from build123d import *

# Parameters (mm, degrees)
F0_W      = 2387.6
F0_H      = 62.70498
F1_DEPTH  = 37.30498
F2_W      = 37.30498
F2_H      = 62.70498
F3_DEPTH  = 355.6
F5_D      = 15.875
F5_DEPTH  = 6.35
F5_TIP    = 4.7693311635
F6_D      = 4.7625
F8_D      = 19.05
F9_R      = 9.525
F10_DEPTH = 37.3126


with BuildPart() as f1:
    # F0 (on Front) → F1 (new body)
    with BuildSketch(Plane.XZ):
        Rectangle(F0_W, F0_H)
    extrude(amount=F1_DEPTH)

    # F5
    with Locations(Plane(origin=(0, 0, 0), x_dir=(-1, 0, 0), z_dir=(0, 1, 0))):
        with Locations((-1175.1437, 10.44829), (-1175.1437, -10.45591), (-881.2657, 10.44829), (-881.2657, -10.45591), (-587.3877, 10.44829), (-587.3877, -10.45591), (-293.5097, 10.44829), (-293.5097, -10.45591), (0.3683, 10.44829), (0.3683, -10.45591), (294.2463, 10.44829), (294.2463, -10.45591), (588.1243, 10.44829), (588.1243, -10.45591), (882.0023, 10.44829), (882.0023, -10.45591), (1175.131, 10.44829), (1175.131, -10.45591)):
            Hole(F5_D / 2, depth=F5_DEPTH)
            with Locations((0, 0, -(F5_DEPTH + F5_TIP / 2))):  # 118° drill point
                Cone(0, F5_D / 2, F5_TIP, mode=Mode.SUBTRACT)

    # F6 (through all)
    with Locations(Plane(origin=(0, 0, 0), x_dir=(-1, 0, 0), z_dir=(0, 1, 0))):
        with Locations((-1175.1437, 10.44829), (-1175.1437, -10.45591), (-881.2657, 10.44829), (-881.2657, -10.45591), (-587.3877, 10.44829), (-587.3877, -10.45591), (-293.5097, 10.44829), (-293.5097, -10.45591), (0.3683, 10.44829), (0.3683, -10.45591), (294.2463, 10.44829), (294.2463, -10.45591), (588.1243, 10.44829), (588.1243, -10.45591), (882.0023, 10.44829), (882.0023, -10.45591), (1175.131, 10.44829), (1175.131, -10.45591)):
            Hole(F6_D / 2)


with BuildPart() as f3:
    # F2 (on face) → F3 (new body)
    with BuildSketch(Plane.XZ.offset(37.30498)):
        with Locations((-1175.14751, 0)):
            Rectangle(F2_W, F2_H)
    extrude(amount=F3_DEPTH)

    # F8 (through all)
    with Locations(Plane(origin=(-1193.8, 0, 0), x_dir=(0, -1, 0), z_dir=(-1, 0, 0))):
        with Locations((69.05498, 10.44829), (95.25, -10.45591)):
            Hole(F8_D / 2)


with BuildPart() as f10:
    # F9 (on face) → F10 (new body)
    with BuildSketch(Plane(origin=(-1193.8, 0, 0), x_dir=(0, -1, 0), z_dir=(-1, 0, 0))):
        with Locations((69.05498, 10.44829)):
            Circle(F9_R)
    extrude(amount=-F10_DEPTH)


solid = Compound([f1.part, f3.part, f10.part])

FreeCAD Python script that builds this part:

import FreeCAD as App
import Part
import Sketcher

V = App.Vector
Q = App.Units.Quantity

doc = App.newDocument("Part")
params = doc.addObject("Spreadsheet::Sheet", "Params")
for row, (alias, value) in enumerate([
    ("sketch1_width", "94 in"),
    ("pad1_length", "1.4687 in"),
    ("sketch2_diameter", "0.625 in"),
    ("hole_diameter", "0.625 in"),
    ("hole_depth", "0.25 in"),
    ("sketch3_diameter", "0.1875 in"),
    ("hole2_diameter", "0.1875 in"),
    ("pad2_length", "14 in"),
    ("sketch5_diameter", "0.75 in"),
    ("hole3_diameter", "0.75 in"),
    ("sketch6_diameter", "0.75 in"),
    ("pad3_length", "1.469 in"),
], start=1):
    params.set(f"A{row}", alias)
    params.set(f"B{row}", "=" + value)
    params.setAlias(f"B{row}", alias)

body = doc.addObject("PartDesign::Body", "Body")

# Sketch on XZ plane
sketch1 = body.newObject("Sketcher::SketchObject", "Sketch")
sketch1.AttachmentSupport = (doc.getObject("XZ_Plane"), [""])
sketch1.MapMode = "FlatFace"
sketch1.addGeometry(Part.LineSegment(V(-1194, 31, 0), V(-1194, -31, 0)), False)
sketch1.addGeometry(Part.LineSegment(V(-1194, -31, 0), V(1194, -31, 0)), False)
sketch1.addGeometry(Part.LineSegment(V(1194, -31, 0), V(1194, 31, 0)), False)
sketch1.addGeometry(Part.LineSegment(V(1194, 31, 0), V(-1194, 31, 0)), False)
sketch1.addConstraint(Sketcher.Constraint("Coincident", 0, 2, 1, 1))
sketch1.addConstraint(Sketcher.Constraint("Coincident", 1, 2, 2, 1))
sketch1.addConstraint(Sketcher.Constraint("Coincident", 2, 2, 3, 1))
sketch1.addConstraint(Sketcher.Constraint("Coincident", 3, 2, 0, 1))
sketch1.addConstraint(Sketcher.Constraint("Vertical", 0))
sketch1.addConstraint(Sketcher.Constraint("Horizontal", 1))
sketch1.addConstraint(Sketcher.Constraint("Vertical", 2))
sketch1.addConstraint(Sketcher.Constraint("Horizontal", 3))
sketch1.addConstraint(Sketcher.Constraint("Symmetric", 0, 2, 2, 2, -1, 1))
sketch1.addConstraint(Sketcher.Constraint("DistanceX", 1, 1, 1, 2, Q("94 in")))
sketch1.addConstraint(Sketcher.Constraint("DistanceY", 0, 2, 0, 1, Q("2.4687 in")))
sketch1.setExpression("Constraints[9]", "Params.sketch1_width")
pad1 = body.newObject("PartDesign::Pad", "Pad")
pad1.Profile = sketch1
pad1.setExpression("Length", "Params.pad1_length")

# Sketch on XZ plane
sketch2 = body.newObject("Sketcher::SketchObject", "Sketch001")
sketch2.AttachmentSupport = (doc.getObject("XZ_Plane"), [""])
sketch2.MapMode = "FlatFace"
sketch2.addGeometry(Part.Circle(V(1175, 10, 0), V(0, 0, 1), 8), False)
sketch2.addGeometry(Part.Circle(V(1175, -10, 0), V(0, 0, 1), 8), False)
sketch2.addGeometry(Part.Circle(V(881, 10, 0), V(0, 0, 1), 8), False)
sketch2.addGeometry(Part.Circle(V(881, -10, 0), V(0, 0, 1), 8), False)
sketch2.addGeometry(Part.Circle(V(587, 10, 0), V(0, 0, 1), 8), False)
sketch2.addGeometry(Part.Circle(V(587, -10, 0), V(0, 0, 1), 8), False)
sketch2.addGeometry(Part.Circle(V(294, 10, 0), V(0, 0, 1), 8), False)
sketch2.addGeometry(Part.Circle(V(294, -10, 0), V(0, 0, 1), 8), False)
sketch2.addGeometry(Part.Circle(V(0, 10, 0), V(0, 0, 1), 8), False)
sketch2.addGeometry(Part.Circle(V(0, -10, 0), V(0, 0, 1), 8), False)
sketch2.addGeometry(Part.Circle(V(-294, 10, 0), V(0, 0, 1), 8), False)
sketch2.addGeometry(Part.Circle(V(-294, -10, 0), V(0, 0, 1), 8), False)
sketch2.addGeometry(Part.Circle(V(-588, 10, 0), V(0, 0, 1), 8), False)
sketch2.addGeometry(Part.Circle(V(-588, -10, 0), V(0, 0, 1), 8), False)
sketch2.addGeometry(Part.Circle(V(-882, 10, 0), V(0, 0, 1), 8), False)
sketch2.addGeometry(Part.Circle(V(-882, -10, 0), V(0, 0, 1), 8), False)
sketch2.addGeometry(Part.Circle(V(-1175, 10, 0), V(0, 0, 1), 8), False)
sketch2.addGeometry(Part.Circle(V(-1175, -10, 0), V(0, 0, 1), 8), False)
sketch2.addConstraint(Sketcher.Constraint("Equal", 0, 1))
sketch2.addConstraint(Sketcher.Constraint("Equal", 1, 2))
sketch2.addConstraint(Sketcher.Constraint("Equal", 2, 3))
sketch2.addConstraint(Sketcher.Constraint("Equal", 3, 4))
sketch2.addConstraint(Sketcher.Constraint("Equal", 4, 5))
sketch2.addConstraint(Sketcher.Constraint("Equal", 5, 6))
sketch2.addConstraint(Sketcher.Constraint("Equal", 6, 7))
sketch2.addConstraint(Sketcher.Constraint("Equal", 7, 8))
sketch2.addConstraint(Sketcher.Constraint("Equal", 8, 9))
sketch2.addConstraint(Sketcher.Constraint("Equal", 9, 10))
sketch2.addConstraint(Sketcher.Constraint("Equal", 10, 11))
sketch2.addConstraint(Sketcher.Constraint("Equal", 11, 12))
sketch2.addConstraint(Sketcher.Constraint("Equal", 12, 13))
sketch2.addConstraint(Sketcher.Constraint("Equal", 13, 14))
sketch2.addConstraint(Sketcher.Constraint("Equal", 14, 15))
sketch2.addConstraint(Sketcher.Constraint("Equal", 15, 16))
sketch2.addConstraint(Sketcher.Constraint("Equal", 16, 17))
sketch2.addConstraint(Sketcher.Constraint("Horizontal", 0, 3, 2, 3))
sketch2.addConstraint(Sketcher.Constraint("Horizontal", 1, 3, 3, 3))
sketch2.addConstraint(Sketcher.Constraint("Horizontal", 2, 3, 4, 3))
sketch2.addConstraint(Sketcher.Constraint("Horizontal", 3, 3, 5, 3))
sketch2.addConstraint(Sketcher.Constraint("Horizontal", 4, 3, 6, 3))
sketch2.addConstraint(Sketcher.Constraint("Horizontal", 5, 3, 7, 3))
sketch2.addConstraint(Sketcher.Constraint("Horizontal", 6, 3, 8, 3))
sketch2.addConstraint(Sketcher.Constraint("Horizontal", 7, 3, 9, 3))
sketch2.addConstraint(Sketcher.Constraint("Horizontal", 8, 3, 10, 3))
sketch2.addConstraint(Sketcher.Constraint("Horizontal", 9, 3, 11, 3))
sketch2.addConstraint(Sketcher.Constraint("Horizontal", 10, 3, 12, 3))
sketch2.addConstraint(Sketcher.Constraint("Horizontal", 11, 3, 13, 3))
sketch2.addConstraint(Sketcher.Constraint("Horizontal", 12, 3, 14, 3))
sketch2.addConstraint(Sketcher.Constraint("Horizontal", 13, 3, 15, 3))
sketch2.addConstraint(Sketcher.Constraint("Horizontal", 14, 3, 16, 3))
sketch2.addConstraint(Sketcher.Constraint("Horizontal", 15, 3, 17, 3))
sketch2.addConstraint(Sketcher.Constraint("Vertical", 0, 3, 1, 3))
sketch2.addConstraint(Sketcher.Constraint("Vertical", 2, 3, 3, 3))
sketch2.addConstraint(Sketcher.Constraint("Vertical", 4, 3, 5, 3))
sketch2.addConstraint(Sketcher.Constraint("Vertical", 6, 3, 7, 3))
sketch2.addConstraint(Sketcher.Constraint("Vertical", 8, 3, 9, 3))
sketch2.addConstraint(Sketcher.Constraint("Vertical", 10, 3, 11, 3))
sketch2.addConstraint(Sketcher.Constraint("Vertical", 12, 3, 13, 3))
sketch2.addConstraint(Sketcher.Constraint("Vertical", 14, 3, 15, 3))
sketch2.addConstraint(Sketcher.Constraint("Vertical", 16, 3, 17, 3))
sketch2.addConstraint(Sketcher.Constraint("Diameter", 0, Q("0.625 in")))
sketch2.addConstraint(Sketcher.Constraint("DistanceX", 2, 3, 0, 3, Q("11.57 in")))
sketch2.addConstraint(Sketcher.Constraint("DistanceX", 4, 3, 2, 3, Q("11.57 in")))
sketch2.addConstraint(Sketcher.Constraint("DistanceX", 6, 3, 4, 3, Q("11.57 in")))
sketch2.addConstraint(Sketcher.Constraint("DistanceX", 8, 3, 6, 3, Q("11.57 in")))
sketch2.addConstraint(Sketcher.Constraint("DistanceX", 10, 3, 8, 3, Q("11.57 in")))
sketch2.addConstraint(Sketcher.Constraint("DistanceX", 12, 3, 10, 3, Q("11.57 in")))
sketch2.addConstraint(Sketcher.Constraint("DistanceX", 14, 3, 12, 3, Q("11.57 in")))
sketch2.addConstraint(Sketcher.Constraint("DistanceX", 16, 3, -1, 1, Q("46.265 in")))
sketch2.addConstraint(Sketcher.Constraint("DistanceY", 1, 3, 0, 3, Q("0.823 in")))
sketch2.addConstraint(Sketcher.Constraint("DistanceX", -1, 1, 0, 3, Q("46.2655 in")))
sketch2.addConstraint(Sketcher.Constraint("DistanceY", -1, 1, 0, 3, 10.44829))
sketch2.setExpression("Constraints[42]", "Params.sketch2_diameter")
doc.recompute()
hole = body.newObject("PartDesign::Hole", "Hole")
hole.Profile = sketch2
hole.ThreadType = "None"
hole.setExpression("Diameter", "Params.hole_diameter")
hole.DepthType = "Dimension"
hole.setExpression("Depth", "Params.hole_depth")
hole.DrillPoint = "Angled"
hole.DrillPointAngle = 118
hole.Reversed = True

# Sketch on XZ plane
sketch3 = body.newObject("Sketcher::SketchObject", "Sketch002")
sketch3.AttachmentSupport = (doc.getObject("XZ_Plane"), [""])
sketch3.MapMode = "FlatFace"
sketch3.addGeometry(Part.Circle(V(1175.1, 10.4, 0), V(0, 0, 1), 2.4), False)
sketch3.addGeometry(Part.Circle(V(1175.1, -10.5, 0), V(0, 0, 1), 2.4), False)
sketch3.addGeometry(Part.Circle(V(881.3, 10.4, 0), V(0, 0, 1), 2.4), False)
sketch3.addGeometry(Part.Circle(V(881.3, -10.5, 0), V(0, 0, 1), 2.4), False)
sketch3.addGeometry(Part.Circle(V(587.4, 10.4, 0), V(0, 0, 1), 2.4), False)
sketch3.addGeometry(Part.Circle(V(587.4, -10.5, 0), V(0, 0, 1), 2.4), False)
sketch3.addGeometry(Part.Circle(V(293.5, 10.4, 0), V(0, 0, 1), 2.4), False)
sketch3.addGeometry(Part.Circle(V(293.5, -10.5, 0), V(0, 0, 1), 2.4), False)
sketch3.addGeometry(Part.Circle(V(-0.4, 10.4, 0), V(0, 0, 1), 2.4), False)
sketch3.addGeometry(Part.Circle(V(-0.4, -10.5, 0), V(0, 0, 1), 2.4), False)
sketch3.addGeometry(Part.Circle(V(-294.2, 10.4, 0), V(0, 0, 1), 2.4), False)
sketch3.addGeometry(Part.Circle(V(-294.2, -10.5, 0), V(0, 0, 1), 2.4), False)
sketch3.addGeometry(Part.Circle(V(-588.1, 10.4, 0), V(0, 0, 1), 2.4), False)
sketch3.addGeometry(Part.Circle(V(-588.1, -10.5, 0), V(0, 0, 1), 2.4), False)
sketch3.addGeometry(Part.Circle(V(-882, 10.4, 0), V(0, 0, 1), 2.4), False)
sketch3.addGeometry(Part.Circle(V(-882, -10.5, 0), V(0, 0, 1), 2.4), False)
sketch3.addGeometry(Part.Circle(V(-1175.1, 10.4, 0), V(0, 0, 1), 2.4), False)
sketch3.addGeometry(Part.Circle(V(-1175.1, -10.5, 0), V(0, 0, 1), 2.4), False)
sketch3.addConstraint(Sketcher.Constraint("Equal", 0, 1))
sketch3.addConstraint(Sketcher.Constraint("Equal", 1, 2))
sketch3.addConstraint(Sketcher.Constraint("Equal", 2, 3))
sketch3.addConstraint(Sketcher.Constraint("Equal", 3, 4))
sketch3.addConstraint(Sketcher.Constraint("Equal", 4, 5))
sketch3.addConstraint(Sketcher.Constraint("Equal", 5, 6))
sketch3.addConstraint(Sketcher.Constraint("Equal", 6, 7))
sketch3.addConstraint(Sketcher.Constraint("Equal", 7, 8))
sketch3.addConstraint(Sketcher.Constraint("Equal", 8, 9))
sketch3.addConstraint(Sketcher.Constraint("Equal", 9, 10))
sketch3.addConstraint(Sketcher.Constraint("Equal", 10, 11))
sketch3.addConstraint(Sketcher.Constraint("Equal", 11, 12))
sketch3.addConstraint(Sketcher.Constraint("Equal", 12, 13))
sketch3.addConstraint(Sketcher.Constraint("Equal", 13, 14))
sketch3.addConstraint(Sketcher.Constraint("Equal", 14, 15))
sketch3.addConstraint(Sketcher.Constraint("Equal", 15, 16))
sketch3.addConstraint(Sketcher.Constraint("Equal", 16, 17))
sketch3.addConstraint(Sketcher.Constraint("Horizontal", 0, 3, 2, 3))
sketch3.addConstraint(Sketcher.Constraint("Horizontal", 1, 3, 3, 3))
sketch3.addConstraint(Sketcher.Constraint("Horizontal", 2, 3, 4, 3))
sketch3.addConstraint(Sketcher.Constraint("Horizontal", 3, 3, 5, 3))
sketch3.addConstraint(Sketcher.Constraint("Horizontal", 4, 3, 6, 3))
sketch3.addConstraint(Sketcher.Constraint("Horizontal", 5, 3, 7, 3))
sketch3.addConstraint(Sketcher.Constraint("Horizontal", 6, 3, 8, 3))
sketch3.addConstraint(Sketcher.Constraint("Horizontal", 7, 3, 9, 3))
sketch3.addConstraint(Sketcher.Constraint("Horizontal", 8, 3, 10, 3))
sketch3.addConstraint(Sketcher.Constraint("Horizontal", 9, 3, 11, 3))
sketch3.addConstraint(Sketcher.Constraint("Horizontal", 10, 3, 12, 3))
sketch3.addConstraint(Sketcher.Constraint("Horizontal", 11, 3, 13, 3))
sketch3.addConstraint(Sketcher.Constraint("Horizontal", 12, 3, 14, 3))
sketch3.addConstraint(Sketcher.Constraint("Horizontal", 13, 3, 15, 3))
sketch3.addConstraint(Sketcher.Constraint("Horizontal", 14, 3, 16, 3))
sketch3.addConstraint(Sketcher.Constraint("Horizontal", 15, 3, 17, 3))
sketch3.addConstraint(Sketcher.Constraint("Vertical", 0, 3, 1, 3))
sketch3.addConstraint(Sketcher.Constraint("Vertical", 2, 3, 3, 3))
sketch3.addConstraint(Sketcher.Constraint("Vertical", 4, 3, 5, 3))
sketch3.addConstraint(Sketcher.Constraint("Vertical", 6, 3, 7, 3))
sketch3.addConstraint(Sketcher.Constraint("Vertical", 8, 3, 9, 3))
sketch3.addConstraint(Sketcher.Constraint("Vertical", 10, 3, 11, 3))
sketch3.addConstraint(Sketcher.Constraint("Vertical", 12, 3, 13, 3))
sketch3.addConstraint(Sketcher.Constraint("Vertical", 14, 3, 15, 3))
sketch3.addConstraint(Sketcher.Constraint("Vertical", 16, 3, 17, 3))
sketch3.addConstraint(Sketcher.Constraint("Diameter", 0, Q("0.1875 in")))
sketch3.addConstraint(Sketcher.Constraint("DistanceX", 2, 3, 0, 3, Q("11.57 in")))
sketch3.addConstraint(Sketcher.Constraint("DistanceX", 4, 3, 2, 3, Q("11.57 in")))
sketch3.addConstraint(Sketcher.Constraint("DistanceX", 6, 3, 4, 3, Q("11.57 in")))
sketch3.addConstraint(Sketcher.Constraint("DistanceX", 8, 3, 6, 3, Q("11.57 in")))
sketch3.addConstraint(Sketcher.Constraint("DistanceX", 10, 3, 8, 3, Q("11.57 in")))
sketch3.addConstraint(Sketcher.Constraint("DistanceX", 12, 3, 10, 3, Q("11.57 in")))
sketch3.addConstraint(Sketcher.Constraint("DistanceX", 14, 3, 12, 3, Q("11.57 in")))
sketch3.addConstraint(Sketcher.Constraint("DistanceX", 16, 3, -1, 1, Q("46.265 in")))
sketch3.addConstraint(Sketcher.Constraint("DistanceY", 1, 3, 0, 3, Q("0.823 in")))
sketch3.addConstraint(Sketcher.Constraint("DistanceX", -1, 1, 0, 3, Q("46.2655 in")))
sketch3.addConstraint(Sketcher.Constraint("DistanceY", -1, 1, 0, 3, 10.44829))
sketch3.setExpression("Constraints[42]", "Params.sketch3_diameter")
doc.recompute()
hole2 = body.newObject("PartDesign::Hole", "Hole001")
hole2.Profile = sketch3
hole2.ThreadType = "None"
hole2.setExpression("Diameter", "Params.hole2_diameter")
hole2.DepthType = "ThroughAll"
hole2.Reversed = True
body2 = doc.addObject("PartDesign::Body", "Body001")

# Sketch on XZ plane
sketch4 = body2.newObject("Sketcher::SketchObject", "Sketch003")
sketch4.AttachmentSupport = (doc.getObject("XZ_Plane001"), [""])
sketch4.MapMode = "FlatFace"
sketch4.AttachmentOffset = App.Placement(V(0, 0, 1.4687 * 25.4), App.Rotation())
sketch4.addGeometry(Part.LineSegment(V(-1194, 31, 0), V(-1194, -31, 0)), False)
sketch4.addGeometry(Part.LineSegment(V(-1194, -31, 0), V(-1156, -31, 0)), False)
sketch4.addGeometry(Part.LineSegment(V(-1156, -31, 0), V(-1156, 31, 0)), False)
sketch4.addGeometry(Part.LineSegment(V(-1156, 31, 0), V(-1194, 31, 0)), False)
sketch4.addConstraint(Sketcher.Constraint("Coincident", 0, 2, 1, 1))
sketch4.addConstraint(Sketcher.Constraint("Coincident", 1, 2, 2, 1))
sketch4.addConstraint(Sketcher.Constraint("Coincident", 2, 2, 3, 1))
sketch4.addConstraint(Sketcher.Constraint("Coincident", 3, 2, 0, 1))
sketch4.addConstraint(Sketcher.Constraint("Vertical", 0))
sketch4.addConstraint(Sketcher.Constraint("Horizontal", 1))
sketch4.addConstraint(Sketcher.Constraint("Vertical", 2))
sketch4.addConstraint(Sketcher.Constraint("Horizontal", 3))
sketch4.addConstraint(Sketcher.Constraint("DistanceX", 0, 2, -1, 1, Q("47 in")))
sketch4.addConstraint(Sketcher.Constraint("DistanceX", 1, 1, 1, 2, Q("1.4687 in")))
sketch4.addConstraint(Sketcher.Constraint("DistanceY", 0, 2, 0, 1, Q("2.4687 in")))
sketch4.addConstraint(Sketcher.Constraint("DistanceY", 0, 2, -1, 1, 31.35249))
pad2 = body2.newObject("PartDesign::Pad", "Pad001")
pad2.Profile = sketch4
pad2.setExpression("Length", "Params.pad2_length")

# Sketch on YZ plane
sketch5 = body2.newObject("Sketcher::SketchObject", "Sketch004")
sketch5.AttachmentSupport = (doc.getObject("YZ_Plane001"), [""])
sketch5.MapMode = "FlatFace"
sketch5.AttachmentOffset = App.Placement(V(0, 0, -47 * 25.4), App.Rotation())
sketch5.addGeometry(Part.Circle(V(-69, 10, 0), V(0, 0, 1), 10), False)
sketch5.addGeometry(Part.Circle(V(-95, -10, 0), V(0, 0, 1), 10), False)
sketch5.addConstraint(Sketcher.Constraint("Equal", 0, 1))
sketch5.addConstraint(Sketcher.Constraint("Diameter", 0, Q("0.75 in")))
sketch5.addConstraint(Sketcher.Constraint("DistanceX", 1, 3, -1, 1, Q("3.75 in")))
sketch5.addConstraint(Sketcher.Constraint("DistanceY", 1, 3, 0, 3, Q("0.823 in")))
sketch5.addConstraint(Sketcher.Constraint("DistanceX", 0, 3, -1, 1, Q("2.7187 in")))
sketch5.addConstraint(Sketcher.Constraint("DistanceY", -1, 1, 0, 3, 10.44829))
sketch5.setExpression("Constraints[1]", "Params.sketch5_diameter")
doc.recompute()
hole3 = body2.newObject("PartDesign::Hole", "Hole002")
hole3.Profile = sketch5
hole3.ThreadType = "None"
hole3.setExpression("Diameter", "Params.hole3_diameter")
hole3.DepthType = "ThroughAll"
hole3.Reversed = True
body3 = doc.addObject("PartDesign::Body", "Body002")

# Sketch on YZ plane
sketch6 = body3.newObject("Sketcher::SketchObject", "Sketch005")
sketch6.AttachmentSupport = (doc.getObject("YZ_Plane002"), [""])
sketch6.MapMode = "FlatFace"
sketch6.AttachmentOffset = App.Placement(V(0, 0, -47 * 25.4), App.Rotation())
sketch6.addGeometry(Part.Circle(V(-69, 10, 0), V(0, 0, 1), 10), False)
sketch6.addConstraint(Sketcher.Constraint("Diameter", 0, Q("0.75 in")))
sketch6.addConstraint(Sketcher.Constraint("DistanceX", 0, 3, -1, 1, Q("2.7187 in")))
sketch6.addConstraint(Sketcher.Constraint("DistanceY", -1, 1, 0, 3, 10.44829))
sketch6.setExpression("Constraints[0]", "Params.sketch6_diameter")
pad3 = body3.newObject("PartDesign::Pad", "Pad002")
pad3.Profile = sketch6
pad3.setExpression("Length", "Params.pad3_length")

doc.recompute()
